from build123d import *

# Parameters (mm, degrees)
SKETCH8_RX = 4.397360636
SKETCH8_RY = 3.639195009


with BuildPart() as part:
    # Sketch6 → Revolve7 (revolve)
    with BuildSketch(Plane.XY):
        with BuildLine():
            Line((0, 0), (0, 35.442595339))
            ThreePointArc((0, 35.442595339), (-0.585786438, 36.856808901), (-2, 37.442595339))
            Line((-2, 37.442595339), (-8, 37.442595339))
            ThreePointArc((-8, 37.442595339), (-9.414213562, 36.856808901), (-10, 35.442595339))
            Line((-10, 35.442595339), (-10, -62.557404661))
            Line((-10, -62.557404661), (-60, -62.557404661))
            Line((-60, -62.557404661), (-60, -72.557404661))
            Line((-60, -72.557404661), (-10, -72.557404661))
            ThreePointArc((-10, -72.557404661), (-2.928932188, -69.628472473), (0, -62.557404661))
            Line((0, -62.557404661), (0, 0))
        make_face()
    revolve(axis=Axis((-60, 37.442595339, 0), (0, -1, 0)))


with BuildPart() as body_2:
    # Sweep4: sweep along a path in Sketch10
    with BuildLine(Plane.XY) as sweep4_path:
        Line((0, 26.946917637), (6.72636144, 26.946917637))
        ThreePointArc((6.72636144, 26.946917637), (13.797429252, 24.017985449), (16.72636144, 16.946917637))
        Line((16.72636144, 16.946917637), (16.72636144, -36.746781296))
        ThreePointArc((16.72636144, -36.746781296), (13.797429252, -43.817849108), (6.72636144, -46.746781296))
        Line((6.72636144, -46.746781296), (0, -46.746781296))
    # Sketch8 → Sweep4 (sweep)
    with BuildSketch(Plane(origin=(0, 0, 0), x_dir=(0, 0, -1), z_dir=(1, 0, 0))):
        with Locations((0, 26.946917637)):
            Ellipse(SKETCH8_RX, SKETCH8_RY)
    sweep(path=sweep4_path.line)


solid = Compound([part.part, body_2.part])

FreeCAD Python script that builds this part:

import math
import FreeCAD as App
import Part
import Sketcher
from FreeCAD import Vector
Q = App.Units.Quantity

doc = App.newDocument("Part")
body = doc.addObject("PartDesign::Body", "Body")

sketch1 = body.newObject("Sketcher::SketchObject", "Sketch")
sketch1.AttachmentSupport = (doc.getObject("XY_Plane"), [""])
sketch1.MapMode = "FlatFace"
sketch1.addGeometry([
    Part.ArcOfCircle(Part.Circle(Vector(-2, 35.4, 0), Vector(0, 0, 1), 2), math.radians(0), math.radians(90)),
    Part.LineSegment(Vector(-2, 37.4, 0), Vector(-8, 37.4, 0)),
    Part.ArcOfCircle(Part.Circle(Vector(-8, 35.4, 0), Vector(0, 0, 1), 2), math.radians(90), math.radians(180)),
    Part.LineSegment(Vector(-10, 35.4, 0), Vector(-10, -62.6, 0)),
    Part.LineSegment(Vector(-10, -62.6, 0), Vector(-60, -62.6, 0)),
    Part.LineSegment(Vector(-60, -62.6, 0), Vector(-60, -72.6, 0)),
    Part.LineSegment(Vector(-60, -72.6, 0), Vector(-10, -72.6, 0)),
    Part.ArcOfCircle(Part.Circle(Vector(-10, -62.6, 0), Vector(0, 0, 1), 10), math.radians(-90), math.radians(0)),
    Part.LineSegment(Vector(0, -62.6, 0), Vector(0, 35.4, 0)),
], False)
sketch1.addGeometry(Part.LineSegment(Vector(-60, 37.4, 0), Vector(-60, -72.6, 0)), True)
sketch1.addConstraint([
    Sketcher.Constraint("Tangent", 0, 2, 1, 1),
    Sketcher.Constraint("Tangent", 1, 2, 2, 1),
    Sketcher.Constraint("Tangent", 2, 2, 3, 1),
    Sketcher.Constraint("Coincident", 3, 2, 4, 1),
    Sketcher.Constraint("Coincident", 4, 2, 5, 1),
    Sketcher.Constraint("Coincident", 5, 2, 6, 1),
    Sketcher.Constraint("Tangent", 6, 2, 7, 1),
    Sketcher.Constraint("Tangent", 7, 2, 8, 1),
    Sketcher.Constraint("Tangent", 8, 2, 0, 1),
    Sketcher.Constraint("Horizontal", 1),
    Sketcher.Constraint("Vertical", 3),
    Sketcher.Constraint("Horizontal", 4),
    Sketcher.Constraint("Vertical", 5),
    Sketcher.Constraint("Horizontal", 6),
    Sketcher.Constraint("Vertical", 8),
    Sketcher.Constraint("Vertical", 9),
    Sketcher.Constraint("Coincident", 3, 2, 7, 3),
    Sketcher.Constraint("Coincident", 9, 2, 5, 2),
    Sketcher.Constraint("Equal", 0, 2),
    Sketcher.Constraint("PointOnObject", 7, 2, -2),
    Sketcher.Constraint("Horizontal", 1, 2, 9, 1),
    Sketcher.Constraint("Radius", 0, Q("2 mm")),
    Sketcher.Constraint("Radius", 7, Q("10 mm")),
    Sketcher.Constraint("DistanceX", 4, 2, 4, 1, Q("50 mm")),
    Sketcher.Constraint("DistanceY", 3, 2, 3, 1, Q("98 mm")),
    Sketcher.Constraint("DistanceY", -1, 1, 0, 3, Q("35.442595 mm")),
])
revolution = body.newObject("PartDesign::Revolution", "Revolution")
revolution.Profile = sketch1
revolution.ReferenceAxis = (sketch1, ["Axis0"])
revolution.Angle = 360
body2 = doc.addObject("PartDesign::Body", "Body001")

sketch2 = body2.newObject("Sketcher::SketchObject", "Sketch001")
sketch2.AttachmentSupport = (doc.getObject("YZ_Plane001"), [""])
sketch2.MapMode = "FlatFace"
sketch2.addGeometry(Part.Ellipse(Vector(26.946918, -4.397361, 0), Vector(30.586113, 0, 0), Vector(26.946918, 0, 0)), False)
sketch2.addConstraint(Sketcher.Constraint("Block", 0))

sketch3 = body2.newObject("Sketcher::SketchObject", "Sketch002")
sketch3.AttachmentSupport = (doc.getObject("XY_Plane001"), [""])
sketch3.MapMode = "FlatFace"
sketch3.addGeometry([
    Part.LineSegment(Vector(0, 27, 0), Vector(7, 27, 0)),
    Part.ArcOfCircle(Part.Circle(Vector(7, 17, 0), Vector(0, 0, 1), 10), math.radians(0), math.radians(90)),
    Part.LineSegment(Vector(17, 17, 0), Vector(17, -37, 0)),
    Part.ArcOfCircle(Part.Circle(Vector(7, -37, 0), Vector(0, 0, 1), 10), math.radians(-90), math.radians(0)),
    Part.LineSegment(Vector(7, -47, 0), Vector(0, -47, 0)),
], False)
sketch3.addConstraint([
    Sketcher.Constraint("Tangent", 0, 2, 1, 2),
    Sketcher.Constraint("Tangent", 1, 1, 2, 1),
    Sketcher.Constraint("Tangent", 2, 2, 3, 2),
    Sketcher.Constraint("Tangent", 3, 1, 4, 1),
    Sketcher.Constraint("Horizontal", 0),
    Sketcher.Constraint("Vertical", 2),
    Sketcher.Constraint("Horizontal", 4),
    Sketcher.Constraint("Equal", 1, 3),
    Sketcher.Constraint("PointOnObject", 0, 1, -2),
    Sketcher.Constraint("PointOnObject", 4, 2, -2),
    Sketcher.Constraint("Radius", 1, Q("10 mm")),
    Sketcher.Constraint("DistanceY", 2, 2, 2, 1, Q("53.693699 mm")),
    Sketcher.Constraint("DistanceX", 0, 1, 0, 2, Q("6.726361 mm")),
    Sketcher.Constraint("DistanceY", 3, 3, -1, 1, Q("36.746781 mm")),
])
doc.recompute()

additivepipe = body2.newObject("PartDesign::AdditivePipe", "AdditivePipe")
additivepipe.Profile = sketch2
additivepipe.Spine = (sketch3, ["Edge1", "Edge2", "Edge3", "Edge4", "Edge5"])

doc.recompute()
